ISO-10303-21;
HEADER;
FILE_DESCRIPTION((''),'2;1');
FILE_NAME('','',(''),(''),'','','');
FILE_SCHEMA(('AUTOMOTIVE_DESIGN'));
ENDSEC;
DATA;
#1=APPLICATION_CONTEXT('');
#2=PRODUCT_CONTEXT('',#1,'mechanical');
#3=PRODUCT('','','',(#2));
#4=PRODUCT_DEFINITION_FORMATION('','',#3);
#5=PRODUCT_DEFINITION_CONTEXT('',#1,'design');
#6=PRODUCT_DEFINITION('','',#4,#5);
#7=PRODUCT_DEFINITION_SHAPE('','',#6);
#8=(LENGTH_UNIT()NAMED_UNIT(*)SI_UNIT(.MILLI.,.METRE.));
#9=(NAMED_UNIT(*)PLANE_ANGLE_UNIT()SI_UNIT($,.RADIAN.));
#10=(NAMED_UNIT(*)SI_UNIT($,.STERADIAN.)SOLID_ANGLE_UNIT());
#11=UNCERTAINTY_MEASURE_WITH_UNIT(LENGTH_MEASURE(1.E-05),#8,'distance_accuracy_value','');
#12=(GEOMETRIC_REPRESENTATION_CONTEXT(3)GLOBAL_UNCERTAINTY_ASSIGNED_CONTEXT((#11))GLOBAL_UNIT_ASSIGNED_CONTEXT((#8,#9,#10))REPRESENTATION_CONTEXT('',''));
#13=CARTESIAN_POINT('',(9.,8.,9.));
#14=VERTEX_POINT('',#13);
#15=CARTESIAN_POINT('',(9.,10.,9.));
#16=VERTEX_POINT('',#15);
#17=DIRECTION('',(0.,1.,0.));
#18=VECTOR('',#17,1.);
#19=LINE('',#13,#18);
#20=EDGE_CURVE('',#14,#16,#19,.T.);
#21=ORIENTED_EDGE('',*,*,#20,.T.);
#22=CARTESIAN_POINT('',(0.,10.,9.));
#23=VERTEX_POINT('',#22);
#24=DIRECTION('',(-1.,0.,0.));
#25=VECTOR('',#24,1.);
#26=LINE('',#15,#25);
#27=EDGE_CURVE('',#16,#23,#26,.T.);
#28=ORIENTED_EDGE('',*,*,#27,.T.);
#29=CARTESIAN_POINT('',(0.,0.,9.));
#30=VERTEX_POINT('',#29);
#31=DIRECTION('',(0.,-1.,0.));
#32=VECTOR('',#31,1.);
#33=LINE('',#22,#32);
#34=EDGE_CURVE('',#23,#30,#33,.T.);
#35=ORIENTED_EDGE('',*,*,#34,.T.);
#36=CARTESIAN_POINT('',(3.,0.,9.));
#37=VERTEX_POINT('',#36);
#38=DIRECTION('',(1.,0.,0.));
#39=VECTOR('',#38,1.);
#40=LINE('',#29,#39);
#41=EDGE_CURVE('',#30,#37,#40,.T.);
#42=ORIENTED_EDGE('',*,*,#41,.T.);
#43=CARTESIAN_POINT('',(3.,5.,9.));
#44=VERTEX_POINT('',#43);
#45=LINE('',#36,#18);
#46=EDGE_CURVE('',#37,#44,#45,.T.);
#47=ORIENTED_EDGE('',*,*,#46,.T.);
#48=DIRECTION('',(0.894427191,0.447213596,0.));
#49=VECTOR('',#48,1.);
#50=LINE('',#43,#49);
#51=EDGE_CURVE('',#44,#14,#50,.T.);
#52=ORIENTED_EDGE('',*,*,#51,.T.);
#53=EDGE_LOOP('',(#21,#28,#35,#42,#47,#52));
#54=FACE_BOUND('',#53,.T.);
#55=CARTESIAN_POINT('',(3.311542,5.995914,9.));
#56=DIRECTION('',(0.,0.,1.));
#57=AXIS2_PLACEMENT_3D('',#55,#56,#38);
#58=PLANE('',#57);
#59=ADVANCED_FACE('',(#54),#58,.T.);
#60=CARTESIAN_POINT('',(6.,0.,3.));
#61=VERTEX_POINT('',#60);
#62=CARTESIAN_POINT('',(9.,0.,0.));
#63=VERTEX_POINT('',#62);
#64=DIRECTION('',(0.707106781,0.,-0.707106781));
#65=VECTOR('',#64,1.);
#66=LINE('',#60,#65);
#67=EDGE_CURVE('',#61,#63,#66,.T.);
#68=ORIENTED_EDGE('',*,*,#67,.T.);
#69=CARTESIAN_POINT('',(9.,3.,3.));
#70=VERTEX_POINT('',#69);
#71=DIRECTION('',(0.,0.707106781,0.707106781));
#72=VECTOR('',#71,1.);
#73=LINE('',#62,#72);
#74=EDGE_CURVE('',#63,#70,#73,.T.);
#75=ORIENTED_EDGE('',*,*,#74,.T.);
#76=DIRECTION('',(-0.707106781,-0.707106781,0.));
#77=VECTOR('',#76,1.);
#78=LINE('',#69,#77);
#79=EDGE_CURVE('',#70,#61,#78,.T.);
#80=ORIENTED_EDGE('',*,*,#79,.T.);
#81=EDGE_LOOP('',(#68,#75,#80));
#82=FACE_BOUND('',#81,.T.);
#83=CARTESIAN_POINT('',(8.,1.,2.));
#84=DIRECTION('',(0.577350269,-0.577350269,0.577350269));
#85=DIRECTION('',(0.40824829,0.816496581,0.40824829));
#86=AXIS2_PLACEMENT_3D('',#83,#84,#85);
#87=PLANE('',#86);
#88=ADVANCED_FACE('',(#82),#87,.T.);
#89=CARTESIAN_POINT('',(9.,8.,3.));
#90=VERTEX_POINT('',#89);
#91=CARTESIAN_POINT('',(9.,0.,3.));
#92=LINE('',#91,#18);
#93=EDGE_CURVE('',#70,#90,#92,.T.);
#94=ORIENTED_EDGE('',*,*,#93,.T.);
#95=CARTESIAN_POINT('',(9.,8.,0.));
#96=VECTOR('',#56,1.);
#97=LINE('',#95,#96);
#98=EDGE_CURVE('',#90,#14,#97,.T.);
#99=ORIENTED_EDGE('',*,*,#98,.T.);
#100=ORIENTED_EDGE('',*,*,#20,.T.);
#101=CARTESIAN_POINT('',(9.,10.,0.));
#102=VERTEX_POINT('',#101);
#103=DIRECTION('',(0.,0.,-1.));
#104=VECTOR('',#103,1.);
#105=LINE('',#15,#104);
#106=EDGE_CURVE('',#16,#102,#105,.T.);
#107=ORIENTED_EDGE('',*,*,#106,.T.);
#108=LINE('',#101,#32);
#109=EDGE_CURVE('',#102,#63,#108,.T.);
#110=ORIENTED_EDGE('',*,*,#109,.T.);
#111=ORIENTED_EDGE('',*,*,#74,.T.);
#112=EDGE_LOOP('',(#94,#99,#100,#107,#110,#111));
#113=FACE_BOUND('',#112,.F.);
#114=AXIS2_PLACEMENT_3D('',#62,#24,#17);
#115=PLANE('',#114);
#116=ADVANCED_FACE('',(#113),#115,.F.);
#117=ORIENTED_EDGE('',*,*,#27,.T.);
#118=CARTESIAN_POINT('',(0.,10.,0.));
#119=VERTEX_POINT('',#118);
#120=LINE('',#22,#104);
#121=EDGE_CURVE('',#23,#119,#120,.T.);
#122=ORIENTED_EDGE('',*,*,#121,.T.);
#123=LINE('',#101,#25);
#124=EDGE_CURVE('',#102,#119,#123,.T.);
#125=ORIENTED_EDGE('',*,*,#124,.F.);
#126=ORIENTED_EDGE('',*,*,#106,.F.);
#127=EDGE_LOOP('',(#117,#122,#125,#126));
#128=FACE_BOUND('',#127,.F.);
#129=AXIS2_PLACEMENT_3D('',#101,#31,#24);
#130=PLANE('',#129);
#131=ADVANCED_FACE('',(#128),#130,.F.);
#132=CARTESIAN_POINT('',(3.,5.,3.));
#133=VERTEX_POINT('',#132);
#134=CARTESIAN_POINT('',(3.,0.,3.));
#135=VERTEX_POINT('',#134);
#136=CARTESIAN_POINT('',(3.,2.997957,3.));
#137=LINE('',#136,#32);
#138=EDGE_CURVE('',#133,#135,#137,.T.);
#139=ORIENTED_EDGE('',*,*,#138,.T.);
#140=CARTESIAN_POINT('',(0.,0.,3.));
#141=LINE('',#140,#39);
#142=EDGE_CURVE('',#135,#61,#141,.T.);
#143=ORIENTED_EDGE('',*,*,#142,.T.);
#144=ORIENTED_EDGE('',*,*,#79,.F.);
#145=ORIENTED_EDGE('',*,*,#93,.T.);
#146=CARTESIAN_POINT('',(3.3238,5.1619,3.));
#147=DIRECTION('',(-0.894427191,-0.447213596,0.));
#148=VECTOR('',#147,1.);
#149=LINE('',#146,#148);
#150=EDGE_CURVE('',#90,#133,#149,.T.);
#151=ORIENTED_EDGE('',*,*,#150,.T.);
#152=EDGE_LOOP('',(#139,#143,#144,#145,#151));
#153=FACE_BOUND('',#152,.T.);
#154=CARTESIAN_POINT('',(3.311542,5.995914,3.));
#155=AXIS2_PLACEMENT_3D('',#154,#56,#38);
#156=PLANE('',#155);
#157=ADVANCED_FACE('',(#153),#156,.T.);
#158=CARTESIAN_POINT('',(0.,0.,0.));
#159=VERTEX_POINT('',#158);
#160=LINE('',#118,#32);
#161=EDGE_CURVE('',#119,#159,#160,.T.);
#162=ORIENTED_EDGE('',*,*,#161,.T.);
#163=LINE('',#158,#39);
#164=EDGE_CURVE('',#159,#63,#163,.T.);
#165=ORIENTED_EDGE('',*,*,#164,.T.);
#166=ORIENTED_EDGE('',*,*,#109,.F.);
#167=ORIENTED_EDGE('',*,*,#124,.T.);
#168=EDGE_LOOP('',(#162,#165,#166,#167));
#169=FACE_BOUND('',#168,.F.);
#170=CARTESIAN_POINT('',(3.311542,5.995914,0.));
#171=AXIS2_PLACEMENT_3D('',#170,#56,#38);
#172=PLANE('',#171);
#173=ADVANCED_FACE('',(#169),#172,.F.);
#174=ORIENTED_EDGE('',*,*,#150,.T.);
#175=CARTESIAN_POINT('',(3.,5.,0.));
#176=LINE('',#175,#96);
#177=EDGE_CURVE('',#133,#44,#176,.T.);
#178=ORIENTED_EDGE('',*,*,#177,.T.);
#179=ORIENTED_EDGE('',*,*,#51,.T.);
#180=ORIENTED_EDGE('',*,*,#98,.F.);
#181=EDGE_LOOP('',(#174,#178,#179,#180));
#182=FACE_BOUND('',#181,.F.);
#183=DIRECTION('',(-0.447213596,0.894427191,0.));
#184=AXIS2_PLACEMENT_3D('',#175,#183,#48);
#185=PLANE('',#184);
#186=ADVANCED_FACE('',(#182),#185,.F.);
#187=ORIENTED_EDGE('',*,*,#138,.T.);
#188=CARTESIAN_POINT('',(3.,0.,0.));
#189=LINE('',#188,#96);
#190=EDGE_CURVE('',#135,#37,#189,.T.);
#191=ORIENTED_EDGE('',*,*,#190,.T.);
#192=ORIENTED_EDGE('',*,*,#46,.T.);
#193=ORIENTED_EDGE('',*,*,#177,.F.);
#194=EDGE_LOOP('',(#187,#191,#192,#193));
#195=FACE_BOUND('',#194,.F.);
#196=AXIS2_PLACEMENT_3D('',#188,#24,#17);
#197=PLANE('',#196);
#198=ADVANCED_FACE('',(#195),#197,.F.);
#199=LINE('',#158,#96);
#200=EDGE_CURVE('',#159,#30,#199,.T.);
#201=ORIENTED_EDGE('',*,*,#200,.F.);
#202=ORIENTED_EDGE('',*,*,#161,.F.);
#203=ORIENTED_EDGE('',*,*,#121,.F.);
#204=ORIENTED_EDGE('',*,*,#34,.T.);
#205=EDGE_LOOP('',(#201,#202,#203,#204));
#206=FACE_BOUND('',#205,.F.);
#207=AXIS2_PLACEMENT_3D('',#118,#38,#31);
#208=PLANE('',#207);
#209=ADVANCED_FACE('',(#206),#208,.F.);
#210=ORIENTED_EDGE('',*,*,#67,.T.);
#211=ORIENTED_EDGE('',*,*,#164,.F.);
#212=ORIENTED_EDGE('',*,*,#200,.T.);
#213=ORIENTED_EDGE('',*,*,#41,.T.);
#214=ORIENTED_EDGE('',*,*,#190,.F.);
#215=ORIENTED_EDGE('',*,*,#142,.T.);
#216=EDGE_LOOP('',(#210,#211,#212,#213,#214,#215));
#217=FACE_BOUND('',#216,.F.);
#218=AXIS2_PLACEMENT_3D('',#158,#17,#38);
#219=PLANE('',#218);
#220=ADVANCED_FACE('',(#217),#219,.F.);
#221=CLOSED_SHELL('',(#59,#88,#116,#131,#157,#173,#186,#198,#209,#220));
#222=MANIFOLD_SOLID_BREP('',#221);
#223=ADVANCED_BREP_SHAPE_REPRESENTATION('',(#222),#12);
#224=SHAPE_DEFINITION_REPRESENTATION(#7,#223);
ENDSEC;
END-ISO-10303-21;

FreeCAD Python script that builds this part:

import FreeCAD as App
import Part
import Sketcher

V = App.Vector
Q = App.Units.Quantity


def add_polygon(sketch, points):
    """Adds a closed chain of lines whose ends are joined by coincident constraints."""
    first, n = sketch.GeometryCount, len(points)
    for a, b in zip(points, points[1:] + points[:1]):
        sketch.addGeometry(Part.LineSegment(App.Vector(*a, 0), App.Vector(*b, 0)), False)
    for i in range(n):
        sketch.addConstraint(Sketcher.Constraint("Coincident", first + i, 2, first + (i + 1) % n, 1))

doc = App.newDocument("Part")
params = doc.addObject("Spreadsheet::Sheet", "Params")
for row, (alias, value) in enumerate([
    ("sketch1_width", "9 mm"),
    ("sketch1_height", "10 mm"),
    ("pad1_length", "3 mm"),
    ("sketch2_width", "3 mm"),
    ("sketch2_width2", "9 mm"),
    ("sketch2_height", "10 mm"),
    ("sketch2_height2", "5 mm"),
    ("sketch2_height3", "2 mm"),
    ("pad2_length", "9 mm"),
], start=1):
    params.set(f"A{row}", alias)
    params.set(f"B{row}", "=" + value)
    params.setAlias(f"B{row}", alias)

body = doc.addObject("PartDesign::Body", "Body")

sketch1 = body.newObject("Sketcher::SketchObject", "Sketch")
sketch1.AttachmentSupport = (doc.getObject("XY_Plane"), [""])
sketch1.MapMode = "FlatFace"
add_polygon(sketch1, [(0, 10), (0, 0), (9, 0), (9, 10)])
sketch1.addConstraint([
    Sketcher.Constraint("Vertical", 0),
    Sketcher.Constraint("Horizontal", 1),
    Sketcher.Constraint("Vertical", 2),
    Sketcher.Constraint("Horizontal", 3),
    Sketcher.Constraint("Coincident", 0, 2, -1, 1),
    Sketcher.Constraint("DistanceX", 1, 1, 1, 2, 9.0),
    Sketcher.Constraint("DistanceY", 0, 2, 0, 1, 10.0),
])
sketch1.setExpression("Constraints[9]", "Params.sketch1_width")
sketch1.setExpression("Constraints[10]", "Params.sketch1_height")
pad1 = body.newObject("PartDesign::Pad", "Pad")
pad1.Profile = sketch1
pad1.setExpression("Length", "Params.pad1_length")

sketch2 = body.newObject("Sketcher::SketchObject", "Sketch001")
sketch2.AttachmentSupport = (doc.getObject("XY_Plane"), [""])
sketch2.MapMode = "FlatFace"
add_polygon(sketch2, [(0, 10), (0, 0), (3, 0), (3, 5), (9, 8), (9, 10)])
sketch2.addConstraint([
    Sketcher.Constraint("Vertical", 0),
    Sketcher.Constraint("Horizontal", 1),
    Sketcher.Constraint("Vertical", 2),
    Sketcher.Constraint("Vertical", 4),
    Sketcher.Constraint("Horizontal", 5),
    Sketcher.Constraint("Coincident", 0, 2, -1, 1),
    Sketcher.Constraint("DistanceX", 1, 1, 1, 2, 3.0),
    Sketcher.Constraint("DistanceX", 5, 2, 5, 1, 9.0),
    Sketcher.Constraint("DistanceY", 0, 2, 0, 1, 10.0),
    Sketcher.Constraint("DistanceY", 2, 1, 2, 2, 5.0),
    Sketcher.Constraint("DistanceY", 4, 1, 4, 2, 2.0),
])
sketch2.setExpression("Constraints[12]", "Params.sketch2_width")
sketch2.setExpression("Constraints[13]", "Params.sketch2_width2")
sketch2.setExpression("Constraints[14]", "Params.sketch2_height")
sketch2.setExpression("Constraints[15]", "Params.sketch2_height2")
sketch2.setExpression("Constraints[16]", "Params.sketch2_height3")
pad2 = body.newObject("PartDesign::Pad", "Pad001")
pad2.Profile = sketch2
pad2.setExpression("Length", "Params.pad2_length")

sketch3 = body.newObject("Sketcher::SketchObject", "Sketch002")
sketch3.Placement = App.Placement(V(3, -3, 3), App.Rotation(V(0.40824829, 0.816496581, 0.40824829), V(-0.707106781, 0, 0.707106781), V(0.577350269, -0.577350269, 0.577350269), "ZXY"))
add_polygon(sketch3, [(7.3, -4.2), (3.7, -2.1), (3.7, -6.4)])
sketch3.addConstraint([
    Sketcher.Constraint("Vertical", 1),
    Sketcher.Constraint("Equal", 0, 2),
    Sketcher.Constraint("Angle", 0, Q("150 deg")),
    Sketcher.Constraint("DistanceY", 1, 2, 1, 1, 4.242641),
    Sketcher.Constraint("DistanceY", 0, 2, -1, 1, 2.12132),
    Sketcher.Constraint("DistanceX", -1, 1, 2, 2, 7.348469),
])
pocket1 = body.newObject("PartDesign::Pocket", "Pocket")
pocket1.Profile = sketch3
pocket1.Type = "ThroughAll"
pocket1.Reversed = True

doc.recompute()
